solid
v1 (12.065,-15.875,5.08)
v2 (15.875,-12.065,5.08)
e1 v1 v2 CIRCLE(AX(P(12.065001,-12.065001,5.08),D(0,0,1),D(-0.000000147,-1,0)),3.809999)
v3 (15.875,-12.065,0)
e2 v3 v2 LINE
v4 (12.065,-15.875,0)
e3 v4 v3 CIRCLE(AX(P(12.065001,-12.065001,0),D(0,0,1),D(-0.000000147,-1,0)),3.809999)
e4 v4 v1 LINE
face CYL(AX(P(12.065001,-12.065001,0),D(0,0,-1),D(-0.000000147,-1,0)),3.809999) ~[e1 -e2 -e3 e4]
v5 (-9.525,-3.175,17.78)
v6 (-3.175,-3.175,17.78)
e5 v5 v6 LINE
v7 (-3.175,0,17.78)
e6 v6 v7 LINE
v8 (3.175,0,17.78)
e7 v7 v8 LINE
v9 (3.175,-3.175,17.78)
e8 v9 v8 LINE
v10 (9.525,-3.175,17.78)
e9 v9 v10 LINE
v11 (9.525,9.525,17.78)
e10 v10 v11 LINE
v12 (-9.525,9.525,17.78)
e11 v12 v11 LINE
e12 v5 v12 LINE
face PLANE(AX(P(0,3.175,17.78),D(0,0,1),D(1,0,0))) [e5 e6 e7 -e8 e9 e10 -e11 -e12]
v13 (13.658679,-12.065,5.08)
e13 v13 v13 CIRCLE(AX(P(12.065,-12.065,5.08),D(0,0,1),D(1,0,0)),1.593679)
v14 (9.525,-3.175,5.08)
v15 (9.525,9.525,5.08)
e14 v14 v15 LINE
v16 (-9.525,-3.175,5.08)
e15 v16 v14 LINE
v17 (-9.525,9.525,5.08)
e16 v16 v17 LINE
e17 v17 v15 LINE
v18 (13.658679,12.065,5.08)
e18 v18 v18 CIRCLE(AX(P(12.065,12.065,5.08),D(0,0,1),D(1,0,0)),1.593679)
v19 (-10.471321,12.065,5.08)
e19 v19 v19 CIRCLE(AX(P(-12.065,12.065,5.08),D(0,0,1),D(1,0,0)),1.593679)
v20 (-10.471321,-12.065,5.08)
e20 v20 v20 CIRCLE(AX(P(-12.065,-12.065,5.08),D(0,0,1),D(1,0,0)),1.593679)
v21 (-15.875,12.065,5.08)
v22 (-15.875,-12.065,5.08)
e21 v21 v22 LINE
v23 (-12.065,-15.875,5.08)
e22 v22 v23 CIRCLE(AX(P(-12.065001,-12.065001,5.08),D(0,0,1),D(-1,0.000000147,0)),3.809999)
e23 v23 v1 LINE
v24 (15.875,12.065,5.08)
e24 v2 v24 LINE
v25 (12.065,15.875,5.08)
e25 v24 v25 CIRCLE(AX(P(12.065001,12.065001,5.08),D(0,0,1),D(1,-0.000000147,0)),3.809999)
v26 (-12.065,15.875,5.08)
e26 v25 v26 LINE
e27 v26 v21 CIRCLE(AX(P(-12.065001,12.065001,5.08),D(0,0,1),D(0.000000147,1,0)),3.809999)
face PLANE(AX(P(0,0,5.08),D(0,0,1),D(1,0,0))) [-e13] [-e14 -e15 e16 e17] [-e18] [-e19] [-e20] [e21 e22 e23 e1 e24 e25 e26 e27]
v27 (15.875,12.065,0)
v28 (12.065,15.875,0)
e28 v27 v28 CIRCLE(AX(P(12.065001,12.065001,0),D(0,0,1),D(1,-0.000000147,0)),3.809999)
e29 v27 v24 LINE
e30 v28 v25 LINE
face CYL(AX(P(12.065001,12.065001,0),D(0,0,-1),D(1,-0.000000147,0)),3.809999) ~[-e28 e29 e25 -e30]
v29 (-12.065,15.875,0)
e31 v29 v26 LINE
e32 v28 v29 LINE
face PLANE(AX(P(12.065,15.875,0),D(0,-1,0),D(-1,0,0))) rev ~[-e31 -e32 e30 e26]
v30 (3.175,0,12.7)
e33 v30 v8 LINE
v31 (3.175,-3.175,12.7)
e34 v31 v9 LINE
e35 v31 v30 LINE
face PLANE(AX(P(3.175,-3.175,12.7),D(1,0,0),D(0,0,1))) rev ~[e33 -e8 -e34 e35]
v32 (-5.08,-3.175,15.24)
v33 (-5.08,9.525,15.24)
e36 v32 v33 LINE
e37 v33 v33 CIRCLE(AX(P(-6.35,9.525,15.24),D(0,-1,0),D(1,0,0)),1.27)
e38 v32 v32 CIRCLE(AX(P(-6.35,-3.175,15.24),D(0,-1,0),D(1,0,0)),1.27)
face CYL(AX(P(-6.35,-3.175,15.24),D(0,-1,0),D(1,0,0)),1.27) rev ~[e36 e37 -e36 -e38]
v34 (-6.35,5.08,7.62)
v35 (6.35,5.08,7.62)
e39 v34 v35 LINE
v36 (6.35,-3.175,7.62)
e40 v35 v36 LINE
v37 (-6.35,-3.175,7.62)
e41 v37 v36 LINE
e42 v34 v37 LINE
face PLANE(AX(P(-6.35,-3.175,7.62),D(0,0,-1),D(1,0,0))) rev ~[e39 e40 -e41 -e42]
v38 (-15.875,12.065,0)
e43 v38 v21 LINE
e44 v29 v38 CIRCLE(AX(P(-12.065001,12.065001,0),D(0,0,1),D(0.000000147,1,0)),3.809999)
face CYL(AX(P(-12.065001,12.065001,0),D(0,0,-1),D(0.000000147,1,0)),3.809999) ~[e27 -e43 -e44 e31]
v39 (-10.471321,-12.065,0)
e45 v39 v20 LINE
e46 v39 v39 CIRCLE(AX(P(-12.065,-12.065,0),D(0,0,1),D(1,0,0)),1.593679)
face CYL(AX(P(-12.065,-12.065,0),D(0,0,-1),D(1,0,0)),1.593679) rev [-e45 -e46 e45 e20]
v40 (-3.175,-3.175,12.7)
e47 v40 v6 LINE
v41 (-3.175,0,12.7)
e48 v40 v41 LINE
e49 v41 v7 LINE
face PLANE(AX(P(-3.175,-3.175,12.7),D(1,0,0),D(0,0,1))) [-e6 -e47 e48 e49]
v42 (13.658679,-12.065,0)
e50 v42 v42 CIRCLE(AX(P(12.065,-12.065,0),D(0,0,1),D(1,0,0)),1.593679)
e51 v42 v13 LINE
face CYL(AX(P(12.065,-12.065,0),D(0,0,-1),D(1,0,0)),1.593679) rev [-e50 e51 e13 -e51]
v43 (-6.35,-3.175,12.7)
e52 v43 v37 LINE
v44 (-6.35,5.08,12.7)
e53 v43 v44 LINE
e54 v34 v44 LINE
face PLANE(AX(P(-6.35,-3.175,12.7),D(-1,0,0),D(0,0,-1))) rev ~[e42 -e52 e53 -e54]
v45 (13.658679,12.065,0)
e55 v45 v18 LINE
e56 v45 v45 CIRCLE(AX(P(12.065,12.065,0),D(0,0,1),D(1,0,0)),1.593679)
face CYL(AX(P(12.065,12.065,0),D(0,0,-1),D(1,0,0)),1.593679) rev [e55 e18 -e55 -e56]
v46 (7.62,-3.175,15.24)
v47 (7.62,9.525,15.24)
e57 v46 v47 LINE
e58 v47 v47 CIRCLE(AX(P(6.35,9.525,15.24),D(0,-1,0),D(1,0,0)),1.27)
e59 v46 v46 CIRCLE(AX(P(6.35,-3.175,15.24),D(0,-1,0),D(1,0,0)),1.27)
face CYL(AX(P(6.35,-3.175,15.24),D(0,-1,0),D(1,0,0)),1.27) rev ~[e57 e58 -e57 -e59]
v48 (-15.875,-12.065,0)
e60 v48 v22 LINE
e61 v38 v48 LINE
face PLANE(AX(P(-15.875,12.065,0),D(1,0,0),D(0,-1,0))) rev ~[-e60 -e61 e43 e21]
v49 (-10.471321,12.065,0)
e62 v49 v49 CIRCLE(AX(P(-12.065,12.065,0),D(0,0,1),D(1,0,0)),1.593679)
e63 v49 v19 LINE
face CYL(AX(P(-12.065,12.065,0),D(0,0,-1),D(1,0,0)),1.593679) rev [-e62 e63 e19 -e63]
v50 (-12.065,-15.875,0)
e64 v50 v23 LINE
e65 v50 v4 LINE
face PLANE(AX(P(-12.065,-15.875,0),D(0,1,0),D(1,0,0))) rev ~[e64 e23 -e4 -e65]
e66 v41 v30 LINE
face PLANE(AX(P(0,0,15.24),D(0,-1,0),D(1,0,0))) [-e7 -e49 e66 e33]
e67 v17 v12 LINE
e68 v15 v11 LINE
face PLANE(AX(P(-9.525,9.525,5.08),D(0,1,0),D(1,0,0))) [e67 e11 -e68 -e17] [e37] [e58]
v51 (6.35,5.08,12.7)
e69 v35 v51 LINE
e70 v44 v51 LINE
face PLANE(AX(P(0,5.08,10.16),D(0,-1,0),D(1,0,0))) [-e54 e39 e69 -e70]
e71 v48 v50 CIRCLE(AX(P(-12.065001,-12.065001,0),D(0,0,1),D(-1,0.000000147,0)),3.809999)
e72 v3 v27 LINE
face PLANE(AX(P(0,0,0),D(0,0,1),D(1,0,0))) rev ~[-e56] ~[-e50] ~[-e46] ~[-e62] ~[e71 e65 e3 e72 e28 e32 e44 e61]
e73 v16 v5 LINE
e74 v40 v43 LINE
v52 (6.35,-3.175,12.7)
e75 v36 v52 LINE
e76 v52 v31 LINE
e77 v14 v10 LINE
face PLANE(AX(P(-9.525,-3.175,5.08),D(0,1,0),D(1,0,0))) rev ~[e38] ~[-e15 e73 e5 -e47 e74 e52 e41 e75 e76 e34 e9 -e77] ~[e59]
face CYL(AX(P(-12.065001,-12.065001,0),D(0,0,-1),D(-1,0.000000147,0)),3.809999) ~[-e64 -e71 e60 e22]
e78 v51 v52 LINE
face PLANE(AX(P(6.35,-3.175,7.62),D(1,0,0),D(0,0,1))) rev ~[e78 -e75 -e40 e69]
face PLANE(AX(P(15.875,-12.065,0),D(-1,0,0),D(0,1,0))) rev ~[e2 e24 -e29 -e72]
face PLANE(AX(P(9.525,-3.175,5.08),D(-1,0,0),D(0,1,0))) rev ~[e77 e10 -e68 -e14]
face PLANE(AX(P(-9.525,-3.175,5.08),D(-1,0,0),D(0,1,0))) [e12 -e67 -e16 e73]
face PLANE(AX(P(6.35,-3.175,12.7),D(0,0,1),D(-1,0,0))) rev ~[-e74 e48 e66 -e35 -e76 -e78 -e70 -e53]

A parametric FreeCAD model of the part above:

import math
import FreeCAD as App
import Part
import Sketcher

V = App.Vector
Q = App.Units.Quantity


def add_polygon(sketch, points):
    """Adds a closed chain of lines whose ends are joined by coincident constraints."""
    first, n = sketch.GeometryCount, len(points)
    for a, b in zip(points, points[1:] + points[:1]):
        sketch.addGeometry(Part.LineSegment(App.Vector(*a, 0), App.Vector(*b, 0)), False)
    for i in range(n):
        sketch.addConstraint(Sketcher.Constraint("Coincident", first + i, 2, first + (i + 1) % n, 1))

doc = App.newDocument("Part")
body = doc.addObject("PartDesign::Body", "Body")

# Sketch on XY plane
sketch1 = body.newObject("Sketcher::SketchObject", "Sketch")
sketch1.AttachmentSupport = (doc.getObject("XY_Plane"), [""])
sketch1.MapMode = "FlatFace"
sketch1.addGeometry([
    Part.ArcOfCircle(Part.Circle(V(12.065001, 12.065001, 0), V(0, 0, 1), 3.809999), math.radians(-0.000008), math.radians(90.000008)),  # 0
    Part.LineSegment(V(12.065, 15.875, 0), V(-12.065, 15.875, 0)),  # 1
    Part.ArcOfCircle(Part.Circle(V(-12.065001, 12.065001, 0), V(0, 0, 1), 3.809999), math.radians(89.999992), math.radians(180.000008)),  # 2
    Part.LineSegment(V(-15.875, 12.065, 0), V(-15.875, -12.065, 0)),  # 3
    Part.ArcOfCircle(Part.Circle(V(-12.065001, -12.065001, 0), V(0, 0, 1), 3.809999), math.radians(179.999992), math.radians(270.000008)),  # 4
    Part.LineSegment(V(-12.065, -15.875, 0), V(12.065, -15.875, 0)),  # 5
    Part.ArcOfCircle(Part.Circle(V(12.065001, -12.065001, 0), V(0, 0, 1), 3.809999), math.radians(-90.000008), math.radians(0.000008)),  # 6
    Part.LineSegment(V(15.875, -12.065, 0), V(15.875, 12.065, 0)),  # 7
    Part.Circle(V(-12.065, -12.065, 0), V(0, 0, 1), 1.593679),  # 8
    Part.Circle(V(12.065, -12.065, 0), V(0, 0, 1), 1.593679),  # 9
    Part.Circle(V(-12.065, 12.065, 0), V(0, 0, 1), 1.593679),  # 10
    Part.Circle(V(12.065, 12.065, 0), V(0, 0, 1), 1.593679),  # 11
], False)
sketch1.addConstraint([
    Sketcher.Constraint("Tangent", 0, 2, 1, 1),
    Sketcher.Constraint("Tangent", 1, 2, 2, 1),
    Sketcher.Constraint("Tangent", 2, 2, 3, 1),
    Sketcher.Constraint("Tangent", 3, 2, 4, 1),
    Sketcher.Constraint("Tangent", 4, 2, 5, 1),
    Sketcher.Constraint("Tangent", 5, 2, 6, 1),
    Sketcher.Constraint("Tangent", 6, 2, 7, 1),
    Sketcher.Constraint("Tangent", 7, 2, 0, 1),
    Sketcher.Constraint("Horizontal", 1),
    Sketcher.Constraint("Vertical", 3),
    Sketcher.Constraint("Horizontal", 5),
    Sketcher.Constraint("Vertical", 7),
    Sketcher.Constraint("Coincident", 8, 3, 4, 3),
    Sketcher.Constraint("Coincident", 9, 3, 6, 3),
    Sketcher.Constraint("Coincident", 10, 3, 2, 3),
    Sketcher.Constraint("Coincident", 11, 3, 0, 3),
    Sketcher.Constraint("Equal", 0, 2),
    Sketcher.Constraint("Equal", 2, 4),
    Sketcher.Constraint("Equal", 4, 6),
    Sketcher.Constraint("Equal", 8, 9),
    Sketcher.Constraint("Equal", 9, 10),
    Sketcher.Constraint("Equal", 10, 11),
    Sketcher.Constraint("Symmetric", 0, 3, 4, 3, -1, 1),
    Sketcher.Constraint("Equal", 5, 3),
    Sketcher.Constraint("Radius", 0, Q("0.15 in")),
    Sketcher.Constraint("DistanceX", 1, 2, 1, 1, Q("0.95 in")),
    Sketcher.Constraint("Diameter", 8, Q("3.187358 mm")),
])
pad1 = body.newObject("PartDesign::Pad", "Pad")
pad1.Profile = sketch1
pad1.Length = Q("0.2 in")

# Sketch on XY plane
sketch2 = body.newObject("Sketcher::SketchObject", "Sketch001")
sketch2.AttachmentSupport = (doc.getObject("XY_Plane"), [""])
sketch2.MapMode = "FlatFace"
sketch2.AttachmentOffset = App.Placement(V(0, 0, 0.2 * 25.4), App.Rotation())
add_polygon(sketch2, [(-9.525, 9.525), (-9.525, -3.175), (9.525, -3.175), (9.525, 9.525)])  # lines 0-3
sketch2.addConstraint([
    Sketcher.Constraint("Vertical", 0),
    Sketcher.Constraint("Horizontal", 1),
    Sketcher.Constraint("Vertical", 2),
    Sketcher.Constraint("Horizontal", 3),
    Sketcher.Constraint("DistanceY", 0, 2, 0, 1, Q("0.5 in")),
    Sketcher.Constraint("DistanceX", 1, 1, 1, 2, Q("0.75 in")),
    Sketcher.Constraint("DistanceX", 0, 2, -1, 1, Q("0.375 in")),
    Sketcher.Constraint("DistanceY", 0, 2, -1, 1, Q("0.125 in")),
])
pad2 = body.newObject("PartDesign::Pad", "Pad001")
pad2.Profile = sketch2
pad2.Length = Q("0.5 in")

# Sketch on XZ plane
sketch3 = body.newObject("Sketcher::SketchObject", "Sketch002")
sketch3.AttachmentSupport = (doc.getObject("XZ_Plane"), [""])
sketch3.MapMode = "FlatFace"
sketch3.AttachmentOffset = App.Placement(V(0, 0, 0.125 * 25.4), App.Rotation())
add_polygon(sketch3, [(-3.175, 17.78), (-3.175, 12.7), (-6.35, 12.7), (-6.35, 7.62), (6.35, 7.62), (6.35, 12.7), (3.175, 12.7), (3.175, 17.78)])  # lines 0-7
sketch3.addConstraint([
    Sketcher.Constraint("Vertical", 0),
    Sketcher.Constraint("Horizontal", 1),
    Sketcher.Constraint("Vertical", 2),
    Sketcher.Constraint("Horizontal", 3),
    Sketcher.Constraint("Vertical", 4),
    Sketcher.Constraint("Horizontal", 5),
    Sketcher.Constraint("Vertical", 6),
    Sketcher.Constraint("Horizontal", 7),
    Sketcher.Constraint("Symmetric", 1, 2, 4, 2, -2),
    Sketcher.Constraint("Equal", 1, 5),
    Sketcher.Constraint("Equal", 0, 2),
    Sketcher.Constraint("DistanceX", 3, 1, 3, 2, Q("0.5 in")),
    Sketcher.Constraint("DistanceY", 0, 2, 0, 1, Q("0.2 in")),
    Sketcher.Constraint("DistanceX", 7, 2, 7, 1, Q("0.25 in")),
    Sketcher.Constraint("DistanceY", -1, 1, 0, 2, Q("0.5 in")),
])
pocket1 = body.newObject("PartDesign::Pocket", "Pocket")
pocket1.Profile = sketch3
pocket1.Length = Q("0.125 in")

# Sketch on XZ plane
sketch4 = body.newObject("Sketcher::SketchObject", "Sketch003")
sketch4.AttachmentSupport = (doc.getObject("XZ_Plane"), [""])
sketch4.MapMode = "FlatFace"
add_polygon(sketch4, [(-6.35, 12.7), (-6.35, 7.62), (6.35, 7.62), (6.35, 12.7)])  # lines 0-3
sketch4.addConstraint([
    Sketcher.Constraint("Vertical", 0),
    Sketcher.Constraint("Horizontal", 1),
    Sketcher.Constraint("Vertical", 2),
    Sketcher.Constraint("Horizontal", 3),
    Sketcher.Constraint("DistanceX", 1, 1, 1, 2, Q("0.5 in")),
    Sketcher.Constraint("DistanceY", 0, 2, 0, 1, Q("0.2 in")),
    Sketcher.Constraint("DistanceY", -1, 1, 0, 2, Q("0.3 in")),
    Sketcher.Constraint("DistanceX", 0, 2, -1, 1, Q("0.25 in")),
])
pocket2 = body.newObject("PartDesign::Pocket", "Pocket001")
pocket2.Profile = sketch4
pocket2.Length = Q("0.2 in")

# Sketch on XZ plane
sketch5 = body.newObject("Sketcher::SketchObject", "Sketch004")
sketch5.AttachmentSupport = (doc.getObject("XZ_Plane"), [""])
sketch5.MapMode = "FlatFace"
sketch5.AttachmentOffset = App.Placement(V(0, 0, 0.125 * 25.4), App.Rotation())
sketch5.addGeometry([
    Part.Circle(V(-6.35, 15.24, 0), V(0, 0, 1), 1.27),
    Part.Circle(V(6.35, 15.24, 0), V(0, 0, 1), 1.27),
], False)
sketch5.addConstraint([
    Sketcher.Constraint("Equal", 0, 1),
    Sketcher.Constraint("Symmetric", 0, 3, 1, 3, -2),
    Sketcher.Constraint("Diameter", 0, Q("0.1 in")),
    Sketcher.Constraint("DistanceY", -1, 1, 0, 3, Q("0.6 in")),
    Sketcher.Constraint("DistanceX", 0, 3, 1, 3, Q("0.5 in")),
])
pocket3 = body.newObject("PartDesign::Pocket", "Pocket002")
pocket3.Profile = sketch5
pocket3.Length = Q("0.5 in")

doc.recompute()
